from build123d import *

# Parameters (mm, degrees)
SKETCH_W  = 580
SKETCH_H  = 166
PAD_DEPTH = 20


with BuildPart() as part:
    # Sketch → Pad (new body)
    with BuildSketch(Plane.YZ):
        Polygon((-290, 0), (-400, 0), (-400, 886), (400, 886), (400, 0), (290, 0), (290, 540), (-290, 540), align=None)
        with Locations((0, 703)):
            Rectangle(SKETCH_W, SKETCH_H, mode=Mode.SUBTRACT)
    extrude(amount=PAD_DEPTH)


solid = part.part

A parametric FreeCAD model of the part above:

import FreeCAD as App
import Part
import Sketcher

doc = App.newDocument("Part")
params = doc.addObject("Spreadsheet::Sheet", "Params")
for row, (alias, value) in enumerate([
    ("sketch1_width", "110 mm"),
    ("sketch1_width2", "580 mm"),
    ("sketch1_height", "540 mm"),
    ("sketch1_height2", "886 mm"),
    ("sketch1_height3", "166 mm"),
    ("pad1_length", "20 mm"),
], start=1):
    params.set(f"A{row}", alias)
    params.set(f"B{row}", "=" + value)
    params.setAlias(f"B{row}", alias)

body = doc.addObject("PartDesign::Body", "Body")

# Sketch on YZ plane
sketch1 = body.newObject("Sketcher::SketchObject", "Sketch")
sketch1.AttachmentSupport = (doc.getObject("YZ_Plane"), [""])
sketch1.MapMode = "FlatFace"
sketch1.addGeometry([
    Part.LineSegment(App.Vector(-400, 0, 0), App.Vector(-290, 0, 0)),  # 0
    Part.LineSegment(App.Vector(-290, 0, 0), App.Vector(-290, 540, 0)),  # 1
    Part.LineSegment(App.Vector(-290, 540, 0), App.Vector(290, 540, 0)),  # 2
    Part.LineSegment(App.Vector(290, 540, 0), App.Vector(290, 0, 0)),  # 3
    Part.LineSegment(App.Vector(290, 0, 0), App.Vector(400, 0, 0)),  # 4
    Part.LineSegment(App.Vector(400, 0, 0), App.Vector(400, 886, 0)),  # 5
    Part.LineSegment(App.Vector(400, 886, 0), App.Vector(-400, 886, 0)),  # 6
    Part.LineSegment(App.Vector(-400, 886, 0), App.Vector(-400, 0, 0)),  # 7
    Part.LineSegment(App.Vector(-290, 620, 0), App.Vector(-290, 786, 0)),  # 8
    Part.LineSegment(App.Vector(-290, 786, 0), App.Vector(290, 786, 0)),  # 9
    Part.LineSegment(App.Vector(290, 786, 0), App.Vector(290, 620, 0)),  # 10
    Part.LineSegment(App.Vector(290, 620, 0), App.Vector(-290, 620, 0)),  # 11
], False)
sketch1.addConstraint([
    Sketcher.Constraint("Coincident", 0, 2, 1, 1),
    Sketcher.Constraint("Coincident", 1, 2, 2, 1),
    Sketcher.Constraint("Coincident", 2, 2, 3, 1),
    Sketcher.Constraint("Coincident", 3, 2, 4, 1),
    Sketcher.Constraint("Coincident", 4, 2, 5, 1),
    Sketcher.Constraint("Coincident", 5, 2, 6, 1),
    Sketcher.Constraint("Coincident", 6, 2, 7, 1),
    Sketcher.Constraint("Coincident", 7, 2, 0, 1),
    Sketcher.Constraint("Coincident", 8, 2, 9, 1),
    Sketcher.Constraint("Coincident", 9, 2, 10, 1),
    Sketcher.Constraint("Coincident", 10, 2, 11, 1),
    Sketcher.Constraint("Coincident", 11, 2, 8, 1),
    Sketcher.Constraint("Horizontal", 0),
    Sketcher.Constraint("Vertical", 1),
    Sketcher.Constraint("Horizontal", 2),
    Sketcher.Constraint("Vertical", 3),
    Sketcher.Constraint("Horizontal", 4),
    Sketcher.Constraint("Vertical", 5),
    Sketcher.Constraint("Horizontal", 6),
    Sketcher.Constraint("Vertical", 7),
    Sketcher.Constraint("Vertical", 8),
    Sketcher.Constraint("Horizontal", 9),
    Sketcher.Constraint("Vertical", 10),
    Sketcher.Constraint("Horizontal", 11),
    Sketcher.Constraint("Symmetric", 0, 2, 3, 2, -1, 1),
    Sketcher.Constraint("Symmetric", 4, 2, 7, 2, -2),
    Sketcher.Constraint("Vertical", 1, 2, 8, 2),
    Sketcher.Constraint("Vertical", 3, 2, 9, 2),
    Sketcher.Constraint("DistanceX", 0, 1, 0, 2, 110.0),
    Sketcher.Constraint("DistanceX", 2, 1, 2, 2, 580.0),
    Sketcher.Constraint("DistanceY", 1, 1, 1, 2, 540.0),
    Sketcher.Constraint("DistanceY", 5, 1, 5, 2, 886.0),
    Sketcher.Constraint("DistanceY", 8, 1, 8, 2, 166.0),
    Sketcher.Constraint("DistanceY", -1, 1, 8, 2, 786.0),
])
sketch1.setExpression("Constraints[28]", "Params.sketch1_width")
sketch1.setExpression("Constraints[29]", "Params.sketch1_width2")
sketch1.setExpression("Constraints[30]", "Params.sketch1_height")
sketch1.setExpression("Constraints[31]", "Params.sketch1_height2")
sketch1.setExpression("Constraints[32]", "Params.sketch1_height3")
pad1 = body.newObject("PartDesign::Pad", "Pad")
pad1.Profile = sketch1
pad1.setExpression("Length", "Params.pad1_length")

doc.recompute()
